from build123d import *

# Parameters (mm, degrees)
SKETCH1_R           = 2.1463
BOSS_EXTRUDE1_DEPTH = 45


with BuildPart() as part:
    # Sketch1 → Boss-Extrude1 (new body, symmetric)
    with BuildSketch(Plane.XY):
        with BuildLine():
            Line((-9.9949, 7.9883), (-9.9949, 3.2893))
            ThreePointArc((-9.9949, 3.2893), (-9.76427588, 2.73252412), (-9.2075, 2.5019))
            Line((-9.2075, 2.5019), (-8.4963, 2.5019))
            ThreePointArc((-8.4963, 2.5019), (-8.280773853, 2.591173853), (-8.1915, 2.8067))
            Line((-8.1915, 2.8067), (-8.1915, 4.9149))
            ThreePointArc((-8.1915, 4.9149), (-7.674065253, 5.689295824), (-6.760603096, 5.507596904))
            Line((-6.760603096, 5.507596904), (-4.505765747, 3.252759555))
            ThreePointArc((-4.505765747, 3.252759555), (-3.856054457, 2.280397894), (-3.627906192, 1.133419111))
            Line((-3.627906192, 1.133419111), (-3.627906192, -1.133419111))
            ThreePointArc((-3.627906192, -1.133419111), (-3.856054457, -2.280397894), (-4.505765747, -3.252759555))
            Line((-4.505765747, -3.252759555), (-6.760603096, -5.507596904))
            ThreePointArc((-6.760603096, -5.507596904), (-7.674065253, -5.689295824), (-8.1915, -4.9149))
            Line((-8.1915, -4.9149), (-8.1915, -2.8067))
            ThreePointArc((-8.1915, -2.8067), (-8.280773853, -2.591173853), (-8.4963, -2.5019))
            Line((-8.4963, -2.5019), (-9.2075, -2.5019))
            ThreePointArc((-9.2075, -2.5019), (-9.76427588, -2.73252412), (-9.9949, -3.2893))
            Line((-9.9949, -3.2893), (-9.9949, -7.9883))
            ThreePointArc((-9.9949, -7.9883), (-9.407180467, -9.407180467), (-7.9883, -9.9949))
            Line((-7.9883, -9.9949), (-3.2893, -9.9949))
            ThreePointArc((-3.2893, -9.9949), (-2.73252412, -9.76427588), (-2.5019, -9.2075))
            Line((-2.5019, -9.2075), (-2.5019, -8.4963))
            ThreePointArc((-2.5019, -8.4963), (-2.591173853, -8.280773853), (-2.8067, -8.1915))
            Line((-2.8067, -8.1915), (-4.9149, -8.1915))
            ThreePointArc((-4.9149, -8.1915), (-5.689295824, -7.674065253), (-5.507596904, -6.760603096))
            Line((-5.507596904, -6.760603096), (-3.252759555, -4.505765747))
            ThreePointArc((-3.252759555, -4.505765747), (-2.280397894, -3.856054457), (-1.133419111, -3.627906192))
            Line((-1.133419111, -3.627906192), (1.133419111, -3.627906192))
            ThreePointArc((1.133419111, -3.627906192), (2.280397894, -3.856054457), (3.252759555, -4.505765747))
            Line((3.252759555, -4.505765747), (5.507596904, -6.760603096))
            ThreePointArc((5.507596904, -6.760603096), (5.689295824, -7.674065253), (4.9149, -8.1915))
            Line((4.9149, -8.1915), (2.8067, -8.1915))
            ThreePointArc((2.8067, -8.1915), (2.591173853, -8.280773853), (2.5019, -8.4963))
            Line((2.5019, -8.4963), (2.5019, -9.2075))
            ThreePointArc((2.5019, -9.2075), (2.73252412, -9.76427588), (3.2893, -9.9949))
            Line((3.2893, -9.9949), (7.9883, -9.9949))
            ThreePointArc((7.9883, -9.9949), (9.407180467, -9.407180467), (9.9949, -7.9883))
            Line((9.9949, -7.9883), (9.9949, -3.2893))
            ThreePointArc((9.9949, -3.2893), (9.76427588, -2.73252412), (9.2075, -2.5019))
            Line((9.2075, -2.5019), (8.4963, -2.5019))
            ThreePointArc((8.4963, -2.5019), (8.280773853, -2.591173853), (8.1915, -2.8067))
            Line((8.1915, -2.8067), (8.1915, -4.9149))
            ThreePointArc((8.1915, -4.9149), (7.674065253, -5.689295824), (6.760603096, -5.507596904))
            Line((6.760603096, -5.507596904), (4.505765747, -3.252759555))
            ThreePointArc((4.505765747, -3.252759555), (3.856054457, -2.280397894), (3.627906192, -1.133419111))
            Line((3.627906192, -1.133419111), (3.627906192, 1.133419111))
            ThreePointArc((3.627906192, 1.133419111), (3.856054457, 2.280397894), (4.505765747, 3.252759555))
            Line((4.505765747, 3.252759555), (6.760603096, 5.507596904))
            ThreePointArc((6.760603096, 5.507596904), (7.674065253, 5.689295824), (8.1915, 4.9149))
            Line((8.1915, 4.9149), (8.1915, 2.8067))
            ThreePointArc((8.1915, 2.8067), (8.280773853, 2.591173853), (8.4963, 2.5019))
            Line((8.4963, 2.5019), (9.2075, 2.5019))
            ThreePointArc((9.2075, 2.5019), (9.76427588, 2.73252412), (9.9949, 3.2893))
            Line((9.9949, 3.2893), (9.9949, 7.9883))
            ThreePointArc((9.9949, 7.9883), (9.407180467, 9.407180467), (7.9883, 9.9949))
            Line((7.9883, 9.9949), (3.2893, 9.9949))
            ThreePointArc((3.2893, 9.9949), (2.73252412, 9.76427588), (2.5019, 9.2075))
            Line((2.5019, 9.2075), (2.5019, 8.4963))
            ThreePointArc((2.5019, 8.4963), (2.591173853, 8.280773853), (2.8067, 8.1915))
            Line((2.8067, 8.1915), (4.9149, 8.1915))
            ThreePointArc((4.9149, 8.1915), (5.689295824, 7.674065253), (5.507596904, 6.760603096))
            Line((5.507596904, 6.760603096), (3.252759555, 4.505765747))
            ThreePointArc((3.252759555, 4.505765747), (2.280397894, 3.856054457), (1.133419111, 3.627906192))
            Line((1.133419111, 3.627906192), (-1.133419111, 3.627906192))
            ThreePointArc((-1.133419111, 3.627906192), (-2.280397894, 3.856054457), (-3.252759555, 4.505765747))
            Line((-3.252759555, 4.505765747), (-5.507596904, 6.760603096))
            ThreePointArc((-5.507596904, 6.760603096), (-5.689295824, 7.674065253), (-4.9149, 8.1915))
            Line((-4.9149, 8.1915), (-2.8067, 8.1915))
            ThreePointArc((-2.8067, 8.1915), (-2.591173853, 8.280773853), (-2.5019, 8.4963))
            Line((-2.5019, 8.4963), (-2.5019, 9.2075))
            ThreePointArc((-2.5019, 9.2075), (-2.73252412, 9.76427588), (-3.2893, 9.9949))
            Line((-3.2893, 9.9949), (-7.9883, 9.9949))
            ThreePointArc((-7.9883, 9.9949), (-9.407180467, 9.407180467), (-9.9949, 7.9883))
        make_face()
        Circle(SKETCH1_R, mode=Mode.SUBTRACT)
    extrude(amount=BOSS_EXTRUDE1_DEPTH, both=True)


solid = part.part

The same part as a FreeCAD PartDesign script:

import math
import FreeCAD as App
import Part
import Sketcher
from FreeCAD import Vector
Q = App.Units.Quantity

doc = App.newDocument("Part")
body = doc.addObject("PartDesign::Body", "Body")

# Sketch on XY plane
sketch1 = body.newObject("Sketcher::SketchObject", "Sketch")
sketch1.AttachmentSupport = (doc.getObject("XY_Plane"), [""])
sketch1.MapMode = "FlatFace"
sketch1.addGeometry(Part.LineSegment(Vector(-9.99, 7.99, 0), Vector(-9.99, 3.29, 0)), False)
sketch1.addGeometry(Part.ArcOfCircle(Part.Circle(Vector(-9.21, 3.29, 0), Vector(0, 0, 1), 0.79), math.radians(180), math.radians(270)), False)
sketch1.addGeometry(Part.LineSegment(Vector(-9.21, 2.5, 0), Vector(-8.5, 2.5, 0)), False)
sketch1.addGeometry(Part.ArcOfCircle(Part.Circle(Vector(-8.5, 2.81, 0), Vector(0, 0, 1), 0.3), math.radians(-90), math.radians(0)), False)
sketch1.addGeometry(Part.LineSegment(Vector(-8.19, 2.81, 0), Vector(-8.19, 4.91, 0)), False)
sketch1.addGeometry(Part.ArcOfCircle(Part.Circle(Vector(-7.35, 4.91, 0), Vector(0, 0, 1), 0.84), math.radians(45), math.radians(180)), False)
sketch1.addGeometry(Part.LineSegment(Vector(-6.76, 5.51, 0), Vector(-4.51, 3.25, 0)), False)
sketch1.addGeometry(Part.ArcOfCircle(Part.Circle(Vector(-6.63, 1.13, 0), Vector(0, 0, 1), 3), math.radians(0), math.radians(45)), False)
sketch1.addGeometry(Part.LineSegment(Vector(-3.63, 1.13, 0), Vector(-3.63, -1.13, 0)), False)
sketch1.addGeometry(Part.ArcOfCircle(Part.Circle(Vector(-6.63, -1.13, 0), Vector(0, 0, 1), 3), math.radians(-45), math.radians(0)), False)
sketch1.addGeometry(Part.LineSegment(Vector(-4.51, -3.25, 0), Vector(-6.76, -5.51, 0)), False)
sketch1.addGeometry(Part.ArcOfCircle(Part.Circle(Vector(-7.35, -4.91, 0), Vector(0, 0, 1), 0.84), math.radians(180), math.radians(315)), False)
sketch1.addGeometry(Part.LineSegment(Vector(-8.19, -4.91, 0), Vector(-8.19, -2.81, 0)), False)
sketch1.addGeometry(Part.ArcOfCircle(Part.Circle(Vector(-8.5, -2.81, 0), Vector(0, 0, 1), 0.3), math.radians(0), math.radians(90)), False)
sketch1.addGeometry(Part.LineSegment(Vector(-8.5, -2.5, 0), Vector(-9.21, -2.5, 0)), False)
sketch1.addGeometry(Part.ArcOfCircle(Part.Circle(Vector(-9.21, -3.29, 0), Vector(0, 0, 1), 0.79), math.radians(90), math.radians(180)), False)
sketch1.addGeometry(Part.LineSegment(Vector(-9.99, -3.29, 0), Vector(-9.99, -7.99, 0)), False)
sketch1.addGeometry(Part.ArcOfCircle(Part.Circle(Vector(-7.99, -7.99, 0), Vector(0, 0, 1), 2.01), math.radians(180), math.radians(270)), False)
sketch1.addGeometry(Part.LineSegment(Vector(-7.99, -9.99, 0), Vector(-3.29, -9.99, 0)), False)
sketch1.addGeometry(Part.ArcOfCircle(Part.Circle(Vector(-3.29, -9.21, 0), Vector(0, 0, 1), 0.79), math.radians(-90), math.radians(0)), False)
sketch1.addGeometry(Part.LineSegment(Vector(-2.5, -9.21, 0), Vector(-2.5, -8.5, 0)), False)
sketch1.addGeometry(Part.ArcOfCircle(Part.Circle(Vector(-2.81, -8.5, 0), Vector(0, 0, 1), 0.3), math.radians(0), math.radians(90)), False)
sketch1.addGeometry(Part.LineSegment(Vector(-2.81, -8.19, 0), Vector(-4.91, -8.19, 0)), False)
sketch1.addGeometry(Part.ArcOfCircle(Part.Circle(Vector(-4.91, -7.35, 0), Vector(0, 0, 1), 0.84), math.radians(135), math.radians(270)), False)
sketch1.addGeometry(Part.LineSegment(Vector(-5.51, -6.76, 0), Vector(-3.25, -4.51, 0)), False)
sketch1.addGeometry(Part.ArcOfCircle(Part.Circle(Vector(-1.13, -6.63, 0), Vector(0, 0, 1), 3), math.radians(90), math.radians(135)), False)
sketch1.addGeometry(Part.LineSegment(Vector(-1.13, -3.63, 0), Vector(1.13, -3.63, 0)), False)
sketch1.addGeometry(Part.ArcOfCircle(Part.Circle(Vector(1.13, -6.63, 0), Vector(0, 0, 1), 3), math.radians(45), math.radians(90)), False)
sketch1.addGeometry(Part.LineSegment(Vector(3.25, -4.51, 0), Vector(5.51, -6.76, 0)), False)
sketch1.addGeometry(Part.ArcOfCircle(Part.Circle(Vector(4.91, -7.35, 0), Vector(0, 0, 1), 0.84), math.radians(-90), math.radians(45)), False)
sketch1.addGeometry(Part.LineSegment(Vector(4.91, -8.19, 0), Vector(2.81, -8.19, 0)), False)
sketch1.addGeometry(Part.ArcOfCircle(Part.Circle(Vector(2.81, -8.5, 0), Vector(0, 0, 1), 0.3), math.radians(90), math.radians(180)), False)
sketch1.addGeometry(Part.LineSegment(Vector(2.5, -8.5, 0), Vector(2.5, -9.21, 0)), False)
sketch1.addGeometry(Part.ArcOfCircle(Part.Circle(Vector(3.29, -9.21, 0), Vector(0, 0, 1), 0.79), math.radians(180), math.radians(270)), False)
sketch1.addGeometry(Part.LineSegment(Vector(3.29, -9.99, 0), Vector(7.99, -9.99, 0)), False)
sketch1.addGeometry(Part.ArcOfCircle(Part.Circle(Vector(7.99, -7.99, 0), Vector(0, 0, 1), 2.01), math.radians(-90), math.radians(0)), False)
sketch1.addGeometry(Part.LineSegment(Vector(9.99, -7.99, 0), Vector(9.99, -3.29, 0)), False)
sketch1.addGeometry(Part.ArcOfCircle(Part.Circle(Vector(9.21, -3.29, 0), Vector(0, 0, 1), 0.79), math.radians(0), math.radians(90)), False)
sketch1.addGeometry(Part.LineSegment(Vector(9.21, -2.5, 0), Vector(8.5, -2.5, 0)), False)
sketch1.addGeometry(Part.ArcOfCircle(Part.Circle(Vector(8.5, -2.81, 0), Vector(0, 0, 1), 0.3), math.radians(90), math.radians(180)), False)
sketch1.addGeometry(Part.LineSegment(Vector(8.19, -2.81, 0), Vector(8.19, -4.91, 0)), False)
sketch1.addGeometry(Part.ArcOfCircle(Part.Circle(Vector(7.35, -4.91, 0), Vector(0, 0, 1), 0.84), math.radians(-135), math.radians(0)), False)
sketch1.addGeometry(Part.LineSegment(Vector(6.76, -5.51, 0), Vector(4.51, -3.25, 0)), False)
sketch1.addGeometry(Part.ArcOfCircle(Part.Circle(Vector(6.63, -1.13, 0), Vector(0, 0, 1), 3), math.radians(180), math.radians(225)), False)
sketch1.addGeometry(Part.LineSegment(Vector(3.63, -1.13, 0), Vector(3.63, 1.13, 0)), False)
sketch1.addGeometry(Part.ArcOfCircle(Part.Circle(Vector(6.63, 1.13, 0), Vector(0, 0, 1), 3), math.radians(135), math.radians(180)), False)
sketch1.addGeometry(Part.LineSegment(Vector(4.51, 3.25, 0), Vector(6.76, 5.51, 0)), False)
sketch1.addGeometry(Part.ArcOfCircle(Part.Circle(Vector(7.35, 4.91, 0), Vector(0, 0, 1), 0.84), math.radians(0), math.radians(135)), False)
sketch1.addGeometry(Part.LineSegment(Vector(8.19, 4.91, 0), Vector(8.19, 2.81, 0)), False)
sketch1.addGeometry(Part.ArcOfCircle(Part.Circle(Vector(8.5, 2.81, 0), Vector(0, 0, 1), 0.3), math.radians(180), math.radians(270)), False)
sketch1.addGeometry(Part.LineSegment(Vector(8.5, 2.5, 0), Vector(9.21, 2.5, 0)), False)
sketch1.addGeometry(Part.ArcOfCircle(Part.Circle(Vector(9.21, 3.29, 0), Vector(0, 0, 1), 0.79), math.radians(-90), math.radians(0)), False)
sketch1.addGeometry(Part.LineSegment(Vector(9.99, 3.29, 0), Vector(9.99, 7.99, 0)), False)
sketch1.addGeometry(Part.ArcOfCircle(Part.Circle(Vector(7.99, 7.99, 0), Vector(0, 0, 1), 2.01), math.radians(0), math.radians(90)), False)
sketch1.addGeometry(Part.LineSegment(Vector(7.99, 9.99, 0), Vector(3.29, 9.99, 0)), False)
sketch1.addGeometry(Part.ArcOfCircle(Part.Circle(Vector(3.29, 9.21, 0), Vector(0, 0, 1), 0.79), math.radians(90), math.radians(180)), False)
sketch1.addGeometry(Part.LineSegment(Vector(2.5, 9.21, 0), Vector(2.5, 8.5, 0)), False)
sketch1.addGeometry(Part.ArcOfCircle(Part.Circle(Vector(2.81, 8.5, 0), Vector(0, 0, 1), 0.3), math.radians(180), math.radians(270)), False)
sketch1.addGeometry(Part.LineSegment(Vector(2.81, 8.19, 0), Vector(4.91, 8.19, 0)), False)
sketch1.addGeometry(Part.ArcOfCircle(Part.Circle(Vector(4.91, 7.35, 0), Vector(0, 0, 1), 0.84), math.radians(-45), math.radians(90)), False)
sketch1.addGeometry(Part.LineSegment(Vector(5.51, 6.76, 0), Vector(3.25, 4.51, 0)), False)
sketch1.addGeometry(Part.ArcOfCircle(Part.Circle(Vector(1.13, 6.63, 0), Vector(0, 0, 1), 3), math.radians(-90), math.radians(-45)), False)
sketch1.addGeometry(Part.LineSegment(Vector(1.13, 3.63, 0), Vector(-1.13, 3.63, 0)), False)
sketch1.addGeometry(Part.ArcOfCircle(Part.Circle(Vector(-1.13, 6.63, 0), Vector(0, 0, 1), 3), math.radians(-135), math.radians(-90)), False)
sketch1.addGeometry(Part.LineSegment(Vector(-3.25, 4.51, 0), Vector(-5.51, 6.76, 0)), False)
sketch1.addGeometry(Part.ArcOfCircle(Part.Circle(Vector(-4.91, 7.35, 0), Vector(0, 0, 1), 0.84), math.radians(90), math.radians(225)), False)
sketch1.addGeometry(Part.LineSegment(Vector(-4.91, 8.19, 0), Vector(-2.81, 8.19, 0)), False)
sketch1.addGeometry(Part.ArcOfCircle(Part.Circle(Vector(-2.81, 8.5, 0), Vector(0, 0, 1), 0.3), math.radians(-90), math.radians(0)), False)
sketch1.addGeometry(Part.LineSegment(Vector(-2.5, 8.5, 0), Vector(-2.5, 9.21, 0)), False)
sketch1.addGeometry(Part.ArcOfCircle(Part.Circle(Vector(-3.29, 9.21, 0), Vector(0, 0, 1), 0.79), math.radians(0), math.radians(90)), False)
sketch1.addGeometry(Part.LineSegment(Vector(-3.29, 9.99, 0), Vector(-7.99, 9.99, 0)), False)
sketch1.addGeometry(Part.ArcOfCircle(Part.Circle(Vector(-7.99, 7.99, 0), Vector(0, 0, 1), 2.01), math.radians(90), math.radians(180)), False)
sketch1.addGeometry(Part.Circle(Vector(0, 0, 0), Vector(0, 0, 1), 2.15), False)
sketch1.addConstraint(Sketcher.Constraint("Tangent", 0, 2, 1, 1))
sketch1.addConstraint(Sketcher.Constraint("Tangent", 1, 2, 2, 1))
sketch1.addConstraint(Sketcher.Constraint("Tangent", 2, 2, 3, 1))
sketch1.addConstraint(Sketcher.Constraint("Tangent", 3, 2, 4, 1))
sketch1.addConstraint(Sketcher.Constraint("Tangent", 4, 2, 5, 2))
sketch1.addConstraint(Sketcher.Constraint("Tangent", 5, 1, 6, 1))
sketch1.addConstraint(Sketcher.Constraint("Tangent", 6, 2, 7, 2))
sketch1.addConstraint(Sketcher.Constraint("Tangent", 7, 1, 8, 1))
sketch1.addConstraint(Sketcher.Constraint("Tangent", 8, 2, 9, 2))
sketch1.addConstraint(Sketcher.Constraint("Tangent", 9, 1, 10, 1))
sketch1.addConstraint(Sketcher.Constraint("Tangent", 10, 2, 11, 2))
sketch1.addConstraint(Sketcher.Constraint("Tangent", 11, 1, 12, 1))
sketch1.addConstraint(Sketcher.Constraint("Tangent", 12, 2, 13, 1))
sketch1.addConstraint(Sketcher.Constraint("Tangent", 13, 2, 14, 1))
sketch1.addConstraint(Sketcher.Constraint("Tangent", 14, 2, 15, 1))
sketch1.addConstraint(Sketcher.Constraint("Tangent", 15, 2, 16, 1))
sketch1.addConstraint(Sketcher.Constraint("Tangent", 16, 2, 17, 1))
sketch1.addConstraint(Sketcher.Constraint("Tangent", 17, 2, 18, 1))
sketch1.addConstraint(Sketcher.Constraint("Tangent", 18, 2, 19, 1))
sketch1.addConstraint(Sketcher.Constraint("Tangent", 19, 2, 20, 1))
sketch1.addConstraint(Sketcher.Constraint("Tangent", 20, 2, 21, 1))
sketch1.addConstraint(Sketcher.Constraint("Tangent", 21, 2, 22, 1))
sketch1.addConstraint(Sketcher.Constraint("Tangent", 22, 2, 23, 2))
sketch1.addConstraint(Sketcher.Constraint("Tangent", 23, 1, 24, 1))
sketch1.addConstraint(Sketcher.Constraint("Tangent", 24, 2, 25, 2))
sketch1.addConstraint(Sketcher.Constraint("Tangent", 25, 1, 26, 1))
sketch1.addConstraint(Sketcher.Constraint("Tangent", 26, 2, 27, 2))
sketch1.addConstraint(Sketcher.Constraint("Tangent", 27, 1, 28, 1))
sketch1.addConstraint(Sketcher.Constraint("Tangent", 28, 2, 29, 2))
sketch1.addConstraint(Sketcher.Constraint("Tangent", 29, 1, 30, 1))
sketch1.addConstraint(Sketcher.Constraint("Tangent", 30, 2, 31, 1))
sketch1.addConstraint(Sketcher.Constraint("Tangent", 31, 2, 32, 1))
sketch1.addConstraint(Sketcher.Constraint("Tangent", 32, 2, 33, 1))
sketch1.addConstraint(Sketcher.Constraint("Tangent", 33, 2, 34, 1))
sketch1.addConstraint(Sketcher.Constraint("Tangent", 34, 2, 35, 1))
sketch1.addConstraint(Sketcher.Constraint("Tangent", 35, 2, 36, 1))
sketch1.addConstraint(Sketcher.Constraint("Tangent", 36, 2, 37, 1))
sketch1.addConstraint(Sketcher.Constraint("Tangent", 37, 2, 38, 1))
sketch1.addConstraint(Sketcher.Constraint("Tangent", 38, 2, 39, 1))
sketch1.addConstraint(Sketcher.Constraint("Tangent", 39, 2, 40, 1))
sketch1.addConstraint(Sketcher.Constraint("Tangent", 40, 2, 41, 2))
sketch1.addConstraint(Sketcher.Constraint("Tangent", 41, 1, 42, 1))
sketch1.addConstraint(Sketcher.Constraint("Tangent", 42, 2, 43, 2))
sketch1.addConstraint(Sketcher.Constraint("Tangent", 43, 1, 44, 1))
sketch1.addConstraint(Sketcher.Constraint("Tangent", 44, 2, 45, 2))
sketch1.addConstraint(Sketcher.Constraint("Tangent", 45, 1, 46, 1))
sketch1.addConstraint(Sketcher.Constraint("Tangent", 46, 2, 47, 2))
sketch1.addConstraint(Sketcher.Constraint("Tangent", 47, 1, 48, 1))
sketch1.addConstraint(Sketcher.Constraint("Tangent", 48, 2, 49, 1))
sketch1.addConstraint(Sketcher.Constraint("Tangent", 49, 2, 50, 1))
sketch1.addConstraint(Sketcher.Constraint("Tangent", 50, 2, 51, 1))
sketch1.addConstraint(Sketcher.Constraint("Tangent", 51, 2, 52, 1))
sketch1.addConstraint(Sketcher.Constraint("Tangent", 52, 2, 53, 1))
sketch1.addConstraint(Sketcher.Constraint("Tangent", 53, 2, 54, 1))
sketch1.addConstraint(Sketcher.Constraint("Tangent", 54, 2, 55, 1))
sketch1.addConstraint(Sketcher.Constraint("Tangent", 55, 2, 56, 1))
sketch1.addConstraint(Sketcher.Constraint("Tangent", 56, 2, 57, 1))
sketch1.addConstraint(Sketcher.Constraint("Tangent", 57, 2, 58, 1))
sketch1.addConstraint(Sketcher.Constraint("Tangent", 58, 2, 59, 2))
sketch1.addConstraint(Sketcher.Constraint("Tangent", 59, 1, 60, 1))
sketch1.addConstraint(Sketcher.Constraint("Tangent", 60, 2, 61, 2))
sketch1.addConstraint(Sketcher.Constraint("Tangent", 61, 1, 62, 1))
sketch1.addConstraint(Sketcher.Constraint("Tangent", 62, 2, 63, 2))
sketch1.addConstraint(Sketcher.Constraint("Tangent", 63, 1, 64, 1))
sketch1.addConstraint(Sketcher.Constraint("Tangent", 64, 2, 65, 2))
sketch1.addConstraint(Sketcher.Constraint("Tangent", 65, 1, 66, 1))
sketch1.addConstraint(Sketcher.Constraint("Tangent", 66, 2, 67, 1))
sketch1.addConstraint(Sketcher.Constraint("Tangent", 67, 2, 68, 1))
sketch1.addConstraint(Sketcher.Constraint("Tangent", 68, 2, 69, 1))
sketch1.addConstraint(Sketcher.Constraint("Tangent", 69, 2, 70, 1))
sketch1.addConstraint(Sketcher.Constraint("Tangent", 70, 2, 71, 1))
sketch1.addConstraint(Sketcher.Constraint("Tangent", 71, 2, 0, 1))
sketch1.addConstraint(Sketcher.Constraint("Vertical", 0))
sketch1.addConstraint(Sketcher.Constraint("Horizontal", 2))
sketch1.addConstraint(Sketcher.Constraint("Vertical", 4))
sketch1.addConstraint(Sketcher.Constraint("Vertical", 8))
sketch1.addConstraint(Sketcher.Constraint("Vertical", 12))
sketch1.addConstraint(Sketcher.Constraint("Horizontal", 14))
sketch1.addConstraint(Sketcher.Constraint("Vertical", 16))
sketch1.addConstraint(Sketcher.Constraint("Horizontal", 18))
sketch1.addConstraint(Sketcher.Constraint("Vertical", 20))
sketch1.addConstraint(Sketcher.Constraint("Horizontal", 22))
sketch1.addConstraint(Sketcher.Constraint("Horizontal", 26))
sketch1.addConstraint(Sketcher.Constraint("Horizontal", 30))
sketch1.addConstraint(Sketcher.Constraint("Vertical", 32))
sketch1.addConstraint(Sketcher.Constraint("Horizontal", 34))
sketch1.addConstraint(Sketcher.Constraint("Vertical", 36))
sketch1.addConstraint(Sketcher.Constraint("Horizontal", 38))
sketch1.addConstraint(Sketcher.Constraint("Vertical", 40))
sketch1.addConstraint(Sketcher.Constraint("Vertical", 44))
sketch1.addConstraint(Sketcher.Constraint("Vertical", 48))
sketch1.addConstraint(Sketcher.Constraint("Horizontal", 50))
sketch1.addConstraint(Sketcher.Constraint("Vertical", 52))
sketch1.addConstraint(Sketcher.Constraint("Horizontal", 54))
sketch1.addConstraint(Sketcher.Constraint("Vertical", 56))
sketch1.addConstraint(Sketcher.Constraint("Horizontal", 58))
sketch1.addConstraint(Sketcher.Constraint("Horizontal", 62))
sketch1.addConstraint(Sketcher.Constraint("Horizontal", 66))
sketch1.addConstraint(Sketcher.Constraint("Vertical", 68))
sketch1.addConstraint(Sketcher.Constraint("Horizontal", 70))
sketch1.addConstraint(Sketcher.Constraint("Coincident", 72, 3, -1, 1))
sketch1.addConstraint(Sketcher.Constraint("Equal", 7, 9))
sketch1.addConstraint(Sketcher.Constraint("Equal", 5, 11))
sketch1.addConstraint(Sketcher.Constraint("Equal", 3, 13))
sketch1.addConstraint(Sketcher.Constraint("Equal", 1, 15))
sketch1.addConstraint(Sketcher.Constraint("Equal", 15, 19))
sketch1.addConstraint(Sketcher.Constraint("Equal", 13, 21))
sketch1.addConstraint(Sketcher.Constraint("Equal", 11, 23))
sketch1.addConstraint(Sketcher.Constraint("Equal", 9, 25))
sketch1.addConstraint(Sketcher.Constraint("Equal", 25, 27))
sketch1.addConstraint(Sketcher.Constraint("Equal", 23, 29))
sketch1.addConstraint(Sketcher.Constraint("Equal", 21, 31))
sketch1.addConstraint(Sketcher.Constraint("Equal", 19, 33))
sketch1.addConstraint(Sketcher.Constraint("Equal", 17, 35))
sketch1.addConstraint(Sketcher.Constraint("Equal", 33, 37))
sketch1.addConstraint(Sketcher.Constraint("Equal", 31, 39))
sketch1.addConstraint(Sketcher.Constraint("Equal", 29, 41))
sketch1.addConstraint(Sketcher.Constraint("Equal", 27, 43))
sketch1.addConstraint(Sketcher.Constraint("Equal", 43, 45))
sketch1.addConstraint(Sketcher.Constraint("Equal", 41, 47))
sketch1.addConstraint(Sketcher.Constraint("Equal", 39, 49))
sketch1.addConstraint(Sketcher.Constraint("Equal", 37, 51))
sketch1.addConstraint(Sketcher.Constraint("Equal", 35, 53))
sketch1.addConstraint(Sketcher.Constraint("Equal", 51, 55))
sketch1.addConstraint(Sketcher.Constraint("Equal", 49, 57))
sketch1.addConstraint(Sketcher.Constraint("Equal", 47, 59))
sketch1.addConstraint(Sketcher.Constraint("Equal", 45, 61))
sketch1.addConstraint(Sketcher.Constraint("Equal", 61, 63))
sketch1.addConstraint(Sketcher.Constraint("Equal", 59, 65))
sketch1.addConstraint(Sketcher.Constraint("Equal", 57, 67))
sketch1.addConstraint(Sketcher.Constraint("Equal", 55, 69))
sketch1.addConstraint(Sketcher.Constraint("Equal", 53, 71))
sketch1.addConstraint(Sketcher.Constraint("Symmetric", 1, 3, 37, 3, -1, 1))
sketch1.addConstraint(Sketcher.Constraint("Symmetric", 5, 3, 41, 3, -1, 1))
sketch1.addConstraint(Sketcher.Constraint("Symmetric", 7, 3, 43, 3, -1, 1))
sketch1.addConstraint(Sketcher.Constraint("Symmetric", 11, 3, 47, 3, -1, 1))
sketch1.addConstraint(Sketcher.Constraint("Symmetric", 15, 3, 51, 3, -1, 1))
sketch1.addConstraint(Sketcher.Constraint("Symmetric", 19, 3, 55, 3, -1, 1))
sketch1.addConstraint(Sketcher.Constraint("Symmetric", 23, 3, 59, 3, -1, 1))
sketch1.addConstraint(Sketcher.Constraint("Symmetric", 25, 3, 61, 3, -1, 1))
sketch1.addConstraint(Sketcher.Constraint("Symmetric", 29, 3, 65, 3, -1, 1))
sketch1.addConstraint(Sketcher.Constraint("Symmetric", 33, 3, 69, 3, -1, 1))
sketch1.addConstraint(Sketcher.Constraint("Symmetric", 23, 3, 29, 3, -2))
sketch1.addConstraint(Sketcher.Constraint("Symmetric", 19, 3, 33, 3, -2))
sketch1.addConstraint(Sketcher.Constraint("Symmetric", 15, 3, 37, 3, -2))
sketch1.addConstraint(Sketcher.Constraint("Symmetric", 11, 3, 41, 3, -2))
sketch1.addConstraint(Sketcher.Constraint("Perpendicular", 6, 10))
sketch1.addConstraint(Sketcher.Constraint("Parallel", 10, 24))
sketch1.addConstraint(Sketcher.Constraint("Perpendicular", 24, 28))
sketch1.addConstraint(Sketcher.Constraint("Perpendicular", 42, 46))
sketch1.addConstraint(Sketcher.Constraint("Perpendicular", 60, 64))
sketch1.addConstraint(Sketcher.Constraint("Horizontal", 9, 3, 43, 3))
sketch1.addConstraint(Sketcher.Constraint("Equal", 70, 0))
sketch1.addConstraint(Sketcher.Constraint("Equal", 66, 4))
sketch1.addConstraint(Sketcher.Constraint("Equal", 62, 8))
sketch1.addConstraint(Sketcher.Constraint("Equal", 50, 20))
sketch1.addConstraint(Sketcher.Constraint("Equal", 10, 24))
sketch1.addConstraint(Sketcher.Constraint("Diameter", 72, Q("0.169 in")))
sketch1.addConstraint(Sketcher.Constraint("Radius", 1, Q("0.031 in")))
sketch1.addConstraint(Sketcher.Constraint("Radius", 3, Q("0.012 in")))
sketch1.addConstraint(Sketcher.Constraint("Radius", 5, Q("0.033 in")))
sketch1.addConstraint(Sketcher.Constraint("Radius", 7, Q("0.118 in")))
sketch1.addConstraint(Sketcher.Constraint("Radius", 17, Q("0.079 in")))
sketch1.addConstraint(Sketcher.Constraint("DistanceX", 2, 1, 2, 2, Q("0.028 in")))
sketch1.addConstraint(Sketcher.Constraint("DistanceX", 18, 1, 18, 2, Q("0.185 in")))
sketch1.addConstraint(Sketcher.Constraint("DistanceX", 22, 2, 22, 1, Q("0.083 in")))
sketch1.addConstraint(Sketcher.Constraint("DistanceX", 1, 3, -1, 1, Q("0.3625 in")))
sketch1.addConstraint(Sketcher.Constraint("DistanceX", 26, 1, 26, 2, Q("2.266838 mm")))
pad1 = body.newObject("PartDesign::Pad", "Pad")
pad1.Profile = sketch1
pad1.Length = 90
pad1.Midplane = True

doc.recompute()
